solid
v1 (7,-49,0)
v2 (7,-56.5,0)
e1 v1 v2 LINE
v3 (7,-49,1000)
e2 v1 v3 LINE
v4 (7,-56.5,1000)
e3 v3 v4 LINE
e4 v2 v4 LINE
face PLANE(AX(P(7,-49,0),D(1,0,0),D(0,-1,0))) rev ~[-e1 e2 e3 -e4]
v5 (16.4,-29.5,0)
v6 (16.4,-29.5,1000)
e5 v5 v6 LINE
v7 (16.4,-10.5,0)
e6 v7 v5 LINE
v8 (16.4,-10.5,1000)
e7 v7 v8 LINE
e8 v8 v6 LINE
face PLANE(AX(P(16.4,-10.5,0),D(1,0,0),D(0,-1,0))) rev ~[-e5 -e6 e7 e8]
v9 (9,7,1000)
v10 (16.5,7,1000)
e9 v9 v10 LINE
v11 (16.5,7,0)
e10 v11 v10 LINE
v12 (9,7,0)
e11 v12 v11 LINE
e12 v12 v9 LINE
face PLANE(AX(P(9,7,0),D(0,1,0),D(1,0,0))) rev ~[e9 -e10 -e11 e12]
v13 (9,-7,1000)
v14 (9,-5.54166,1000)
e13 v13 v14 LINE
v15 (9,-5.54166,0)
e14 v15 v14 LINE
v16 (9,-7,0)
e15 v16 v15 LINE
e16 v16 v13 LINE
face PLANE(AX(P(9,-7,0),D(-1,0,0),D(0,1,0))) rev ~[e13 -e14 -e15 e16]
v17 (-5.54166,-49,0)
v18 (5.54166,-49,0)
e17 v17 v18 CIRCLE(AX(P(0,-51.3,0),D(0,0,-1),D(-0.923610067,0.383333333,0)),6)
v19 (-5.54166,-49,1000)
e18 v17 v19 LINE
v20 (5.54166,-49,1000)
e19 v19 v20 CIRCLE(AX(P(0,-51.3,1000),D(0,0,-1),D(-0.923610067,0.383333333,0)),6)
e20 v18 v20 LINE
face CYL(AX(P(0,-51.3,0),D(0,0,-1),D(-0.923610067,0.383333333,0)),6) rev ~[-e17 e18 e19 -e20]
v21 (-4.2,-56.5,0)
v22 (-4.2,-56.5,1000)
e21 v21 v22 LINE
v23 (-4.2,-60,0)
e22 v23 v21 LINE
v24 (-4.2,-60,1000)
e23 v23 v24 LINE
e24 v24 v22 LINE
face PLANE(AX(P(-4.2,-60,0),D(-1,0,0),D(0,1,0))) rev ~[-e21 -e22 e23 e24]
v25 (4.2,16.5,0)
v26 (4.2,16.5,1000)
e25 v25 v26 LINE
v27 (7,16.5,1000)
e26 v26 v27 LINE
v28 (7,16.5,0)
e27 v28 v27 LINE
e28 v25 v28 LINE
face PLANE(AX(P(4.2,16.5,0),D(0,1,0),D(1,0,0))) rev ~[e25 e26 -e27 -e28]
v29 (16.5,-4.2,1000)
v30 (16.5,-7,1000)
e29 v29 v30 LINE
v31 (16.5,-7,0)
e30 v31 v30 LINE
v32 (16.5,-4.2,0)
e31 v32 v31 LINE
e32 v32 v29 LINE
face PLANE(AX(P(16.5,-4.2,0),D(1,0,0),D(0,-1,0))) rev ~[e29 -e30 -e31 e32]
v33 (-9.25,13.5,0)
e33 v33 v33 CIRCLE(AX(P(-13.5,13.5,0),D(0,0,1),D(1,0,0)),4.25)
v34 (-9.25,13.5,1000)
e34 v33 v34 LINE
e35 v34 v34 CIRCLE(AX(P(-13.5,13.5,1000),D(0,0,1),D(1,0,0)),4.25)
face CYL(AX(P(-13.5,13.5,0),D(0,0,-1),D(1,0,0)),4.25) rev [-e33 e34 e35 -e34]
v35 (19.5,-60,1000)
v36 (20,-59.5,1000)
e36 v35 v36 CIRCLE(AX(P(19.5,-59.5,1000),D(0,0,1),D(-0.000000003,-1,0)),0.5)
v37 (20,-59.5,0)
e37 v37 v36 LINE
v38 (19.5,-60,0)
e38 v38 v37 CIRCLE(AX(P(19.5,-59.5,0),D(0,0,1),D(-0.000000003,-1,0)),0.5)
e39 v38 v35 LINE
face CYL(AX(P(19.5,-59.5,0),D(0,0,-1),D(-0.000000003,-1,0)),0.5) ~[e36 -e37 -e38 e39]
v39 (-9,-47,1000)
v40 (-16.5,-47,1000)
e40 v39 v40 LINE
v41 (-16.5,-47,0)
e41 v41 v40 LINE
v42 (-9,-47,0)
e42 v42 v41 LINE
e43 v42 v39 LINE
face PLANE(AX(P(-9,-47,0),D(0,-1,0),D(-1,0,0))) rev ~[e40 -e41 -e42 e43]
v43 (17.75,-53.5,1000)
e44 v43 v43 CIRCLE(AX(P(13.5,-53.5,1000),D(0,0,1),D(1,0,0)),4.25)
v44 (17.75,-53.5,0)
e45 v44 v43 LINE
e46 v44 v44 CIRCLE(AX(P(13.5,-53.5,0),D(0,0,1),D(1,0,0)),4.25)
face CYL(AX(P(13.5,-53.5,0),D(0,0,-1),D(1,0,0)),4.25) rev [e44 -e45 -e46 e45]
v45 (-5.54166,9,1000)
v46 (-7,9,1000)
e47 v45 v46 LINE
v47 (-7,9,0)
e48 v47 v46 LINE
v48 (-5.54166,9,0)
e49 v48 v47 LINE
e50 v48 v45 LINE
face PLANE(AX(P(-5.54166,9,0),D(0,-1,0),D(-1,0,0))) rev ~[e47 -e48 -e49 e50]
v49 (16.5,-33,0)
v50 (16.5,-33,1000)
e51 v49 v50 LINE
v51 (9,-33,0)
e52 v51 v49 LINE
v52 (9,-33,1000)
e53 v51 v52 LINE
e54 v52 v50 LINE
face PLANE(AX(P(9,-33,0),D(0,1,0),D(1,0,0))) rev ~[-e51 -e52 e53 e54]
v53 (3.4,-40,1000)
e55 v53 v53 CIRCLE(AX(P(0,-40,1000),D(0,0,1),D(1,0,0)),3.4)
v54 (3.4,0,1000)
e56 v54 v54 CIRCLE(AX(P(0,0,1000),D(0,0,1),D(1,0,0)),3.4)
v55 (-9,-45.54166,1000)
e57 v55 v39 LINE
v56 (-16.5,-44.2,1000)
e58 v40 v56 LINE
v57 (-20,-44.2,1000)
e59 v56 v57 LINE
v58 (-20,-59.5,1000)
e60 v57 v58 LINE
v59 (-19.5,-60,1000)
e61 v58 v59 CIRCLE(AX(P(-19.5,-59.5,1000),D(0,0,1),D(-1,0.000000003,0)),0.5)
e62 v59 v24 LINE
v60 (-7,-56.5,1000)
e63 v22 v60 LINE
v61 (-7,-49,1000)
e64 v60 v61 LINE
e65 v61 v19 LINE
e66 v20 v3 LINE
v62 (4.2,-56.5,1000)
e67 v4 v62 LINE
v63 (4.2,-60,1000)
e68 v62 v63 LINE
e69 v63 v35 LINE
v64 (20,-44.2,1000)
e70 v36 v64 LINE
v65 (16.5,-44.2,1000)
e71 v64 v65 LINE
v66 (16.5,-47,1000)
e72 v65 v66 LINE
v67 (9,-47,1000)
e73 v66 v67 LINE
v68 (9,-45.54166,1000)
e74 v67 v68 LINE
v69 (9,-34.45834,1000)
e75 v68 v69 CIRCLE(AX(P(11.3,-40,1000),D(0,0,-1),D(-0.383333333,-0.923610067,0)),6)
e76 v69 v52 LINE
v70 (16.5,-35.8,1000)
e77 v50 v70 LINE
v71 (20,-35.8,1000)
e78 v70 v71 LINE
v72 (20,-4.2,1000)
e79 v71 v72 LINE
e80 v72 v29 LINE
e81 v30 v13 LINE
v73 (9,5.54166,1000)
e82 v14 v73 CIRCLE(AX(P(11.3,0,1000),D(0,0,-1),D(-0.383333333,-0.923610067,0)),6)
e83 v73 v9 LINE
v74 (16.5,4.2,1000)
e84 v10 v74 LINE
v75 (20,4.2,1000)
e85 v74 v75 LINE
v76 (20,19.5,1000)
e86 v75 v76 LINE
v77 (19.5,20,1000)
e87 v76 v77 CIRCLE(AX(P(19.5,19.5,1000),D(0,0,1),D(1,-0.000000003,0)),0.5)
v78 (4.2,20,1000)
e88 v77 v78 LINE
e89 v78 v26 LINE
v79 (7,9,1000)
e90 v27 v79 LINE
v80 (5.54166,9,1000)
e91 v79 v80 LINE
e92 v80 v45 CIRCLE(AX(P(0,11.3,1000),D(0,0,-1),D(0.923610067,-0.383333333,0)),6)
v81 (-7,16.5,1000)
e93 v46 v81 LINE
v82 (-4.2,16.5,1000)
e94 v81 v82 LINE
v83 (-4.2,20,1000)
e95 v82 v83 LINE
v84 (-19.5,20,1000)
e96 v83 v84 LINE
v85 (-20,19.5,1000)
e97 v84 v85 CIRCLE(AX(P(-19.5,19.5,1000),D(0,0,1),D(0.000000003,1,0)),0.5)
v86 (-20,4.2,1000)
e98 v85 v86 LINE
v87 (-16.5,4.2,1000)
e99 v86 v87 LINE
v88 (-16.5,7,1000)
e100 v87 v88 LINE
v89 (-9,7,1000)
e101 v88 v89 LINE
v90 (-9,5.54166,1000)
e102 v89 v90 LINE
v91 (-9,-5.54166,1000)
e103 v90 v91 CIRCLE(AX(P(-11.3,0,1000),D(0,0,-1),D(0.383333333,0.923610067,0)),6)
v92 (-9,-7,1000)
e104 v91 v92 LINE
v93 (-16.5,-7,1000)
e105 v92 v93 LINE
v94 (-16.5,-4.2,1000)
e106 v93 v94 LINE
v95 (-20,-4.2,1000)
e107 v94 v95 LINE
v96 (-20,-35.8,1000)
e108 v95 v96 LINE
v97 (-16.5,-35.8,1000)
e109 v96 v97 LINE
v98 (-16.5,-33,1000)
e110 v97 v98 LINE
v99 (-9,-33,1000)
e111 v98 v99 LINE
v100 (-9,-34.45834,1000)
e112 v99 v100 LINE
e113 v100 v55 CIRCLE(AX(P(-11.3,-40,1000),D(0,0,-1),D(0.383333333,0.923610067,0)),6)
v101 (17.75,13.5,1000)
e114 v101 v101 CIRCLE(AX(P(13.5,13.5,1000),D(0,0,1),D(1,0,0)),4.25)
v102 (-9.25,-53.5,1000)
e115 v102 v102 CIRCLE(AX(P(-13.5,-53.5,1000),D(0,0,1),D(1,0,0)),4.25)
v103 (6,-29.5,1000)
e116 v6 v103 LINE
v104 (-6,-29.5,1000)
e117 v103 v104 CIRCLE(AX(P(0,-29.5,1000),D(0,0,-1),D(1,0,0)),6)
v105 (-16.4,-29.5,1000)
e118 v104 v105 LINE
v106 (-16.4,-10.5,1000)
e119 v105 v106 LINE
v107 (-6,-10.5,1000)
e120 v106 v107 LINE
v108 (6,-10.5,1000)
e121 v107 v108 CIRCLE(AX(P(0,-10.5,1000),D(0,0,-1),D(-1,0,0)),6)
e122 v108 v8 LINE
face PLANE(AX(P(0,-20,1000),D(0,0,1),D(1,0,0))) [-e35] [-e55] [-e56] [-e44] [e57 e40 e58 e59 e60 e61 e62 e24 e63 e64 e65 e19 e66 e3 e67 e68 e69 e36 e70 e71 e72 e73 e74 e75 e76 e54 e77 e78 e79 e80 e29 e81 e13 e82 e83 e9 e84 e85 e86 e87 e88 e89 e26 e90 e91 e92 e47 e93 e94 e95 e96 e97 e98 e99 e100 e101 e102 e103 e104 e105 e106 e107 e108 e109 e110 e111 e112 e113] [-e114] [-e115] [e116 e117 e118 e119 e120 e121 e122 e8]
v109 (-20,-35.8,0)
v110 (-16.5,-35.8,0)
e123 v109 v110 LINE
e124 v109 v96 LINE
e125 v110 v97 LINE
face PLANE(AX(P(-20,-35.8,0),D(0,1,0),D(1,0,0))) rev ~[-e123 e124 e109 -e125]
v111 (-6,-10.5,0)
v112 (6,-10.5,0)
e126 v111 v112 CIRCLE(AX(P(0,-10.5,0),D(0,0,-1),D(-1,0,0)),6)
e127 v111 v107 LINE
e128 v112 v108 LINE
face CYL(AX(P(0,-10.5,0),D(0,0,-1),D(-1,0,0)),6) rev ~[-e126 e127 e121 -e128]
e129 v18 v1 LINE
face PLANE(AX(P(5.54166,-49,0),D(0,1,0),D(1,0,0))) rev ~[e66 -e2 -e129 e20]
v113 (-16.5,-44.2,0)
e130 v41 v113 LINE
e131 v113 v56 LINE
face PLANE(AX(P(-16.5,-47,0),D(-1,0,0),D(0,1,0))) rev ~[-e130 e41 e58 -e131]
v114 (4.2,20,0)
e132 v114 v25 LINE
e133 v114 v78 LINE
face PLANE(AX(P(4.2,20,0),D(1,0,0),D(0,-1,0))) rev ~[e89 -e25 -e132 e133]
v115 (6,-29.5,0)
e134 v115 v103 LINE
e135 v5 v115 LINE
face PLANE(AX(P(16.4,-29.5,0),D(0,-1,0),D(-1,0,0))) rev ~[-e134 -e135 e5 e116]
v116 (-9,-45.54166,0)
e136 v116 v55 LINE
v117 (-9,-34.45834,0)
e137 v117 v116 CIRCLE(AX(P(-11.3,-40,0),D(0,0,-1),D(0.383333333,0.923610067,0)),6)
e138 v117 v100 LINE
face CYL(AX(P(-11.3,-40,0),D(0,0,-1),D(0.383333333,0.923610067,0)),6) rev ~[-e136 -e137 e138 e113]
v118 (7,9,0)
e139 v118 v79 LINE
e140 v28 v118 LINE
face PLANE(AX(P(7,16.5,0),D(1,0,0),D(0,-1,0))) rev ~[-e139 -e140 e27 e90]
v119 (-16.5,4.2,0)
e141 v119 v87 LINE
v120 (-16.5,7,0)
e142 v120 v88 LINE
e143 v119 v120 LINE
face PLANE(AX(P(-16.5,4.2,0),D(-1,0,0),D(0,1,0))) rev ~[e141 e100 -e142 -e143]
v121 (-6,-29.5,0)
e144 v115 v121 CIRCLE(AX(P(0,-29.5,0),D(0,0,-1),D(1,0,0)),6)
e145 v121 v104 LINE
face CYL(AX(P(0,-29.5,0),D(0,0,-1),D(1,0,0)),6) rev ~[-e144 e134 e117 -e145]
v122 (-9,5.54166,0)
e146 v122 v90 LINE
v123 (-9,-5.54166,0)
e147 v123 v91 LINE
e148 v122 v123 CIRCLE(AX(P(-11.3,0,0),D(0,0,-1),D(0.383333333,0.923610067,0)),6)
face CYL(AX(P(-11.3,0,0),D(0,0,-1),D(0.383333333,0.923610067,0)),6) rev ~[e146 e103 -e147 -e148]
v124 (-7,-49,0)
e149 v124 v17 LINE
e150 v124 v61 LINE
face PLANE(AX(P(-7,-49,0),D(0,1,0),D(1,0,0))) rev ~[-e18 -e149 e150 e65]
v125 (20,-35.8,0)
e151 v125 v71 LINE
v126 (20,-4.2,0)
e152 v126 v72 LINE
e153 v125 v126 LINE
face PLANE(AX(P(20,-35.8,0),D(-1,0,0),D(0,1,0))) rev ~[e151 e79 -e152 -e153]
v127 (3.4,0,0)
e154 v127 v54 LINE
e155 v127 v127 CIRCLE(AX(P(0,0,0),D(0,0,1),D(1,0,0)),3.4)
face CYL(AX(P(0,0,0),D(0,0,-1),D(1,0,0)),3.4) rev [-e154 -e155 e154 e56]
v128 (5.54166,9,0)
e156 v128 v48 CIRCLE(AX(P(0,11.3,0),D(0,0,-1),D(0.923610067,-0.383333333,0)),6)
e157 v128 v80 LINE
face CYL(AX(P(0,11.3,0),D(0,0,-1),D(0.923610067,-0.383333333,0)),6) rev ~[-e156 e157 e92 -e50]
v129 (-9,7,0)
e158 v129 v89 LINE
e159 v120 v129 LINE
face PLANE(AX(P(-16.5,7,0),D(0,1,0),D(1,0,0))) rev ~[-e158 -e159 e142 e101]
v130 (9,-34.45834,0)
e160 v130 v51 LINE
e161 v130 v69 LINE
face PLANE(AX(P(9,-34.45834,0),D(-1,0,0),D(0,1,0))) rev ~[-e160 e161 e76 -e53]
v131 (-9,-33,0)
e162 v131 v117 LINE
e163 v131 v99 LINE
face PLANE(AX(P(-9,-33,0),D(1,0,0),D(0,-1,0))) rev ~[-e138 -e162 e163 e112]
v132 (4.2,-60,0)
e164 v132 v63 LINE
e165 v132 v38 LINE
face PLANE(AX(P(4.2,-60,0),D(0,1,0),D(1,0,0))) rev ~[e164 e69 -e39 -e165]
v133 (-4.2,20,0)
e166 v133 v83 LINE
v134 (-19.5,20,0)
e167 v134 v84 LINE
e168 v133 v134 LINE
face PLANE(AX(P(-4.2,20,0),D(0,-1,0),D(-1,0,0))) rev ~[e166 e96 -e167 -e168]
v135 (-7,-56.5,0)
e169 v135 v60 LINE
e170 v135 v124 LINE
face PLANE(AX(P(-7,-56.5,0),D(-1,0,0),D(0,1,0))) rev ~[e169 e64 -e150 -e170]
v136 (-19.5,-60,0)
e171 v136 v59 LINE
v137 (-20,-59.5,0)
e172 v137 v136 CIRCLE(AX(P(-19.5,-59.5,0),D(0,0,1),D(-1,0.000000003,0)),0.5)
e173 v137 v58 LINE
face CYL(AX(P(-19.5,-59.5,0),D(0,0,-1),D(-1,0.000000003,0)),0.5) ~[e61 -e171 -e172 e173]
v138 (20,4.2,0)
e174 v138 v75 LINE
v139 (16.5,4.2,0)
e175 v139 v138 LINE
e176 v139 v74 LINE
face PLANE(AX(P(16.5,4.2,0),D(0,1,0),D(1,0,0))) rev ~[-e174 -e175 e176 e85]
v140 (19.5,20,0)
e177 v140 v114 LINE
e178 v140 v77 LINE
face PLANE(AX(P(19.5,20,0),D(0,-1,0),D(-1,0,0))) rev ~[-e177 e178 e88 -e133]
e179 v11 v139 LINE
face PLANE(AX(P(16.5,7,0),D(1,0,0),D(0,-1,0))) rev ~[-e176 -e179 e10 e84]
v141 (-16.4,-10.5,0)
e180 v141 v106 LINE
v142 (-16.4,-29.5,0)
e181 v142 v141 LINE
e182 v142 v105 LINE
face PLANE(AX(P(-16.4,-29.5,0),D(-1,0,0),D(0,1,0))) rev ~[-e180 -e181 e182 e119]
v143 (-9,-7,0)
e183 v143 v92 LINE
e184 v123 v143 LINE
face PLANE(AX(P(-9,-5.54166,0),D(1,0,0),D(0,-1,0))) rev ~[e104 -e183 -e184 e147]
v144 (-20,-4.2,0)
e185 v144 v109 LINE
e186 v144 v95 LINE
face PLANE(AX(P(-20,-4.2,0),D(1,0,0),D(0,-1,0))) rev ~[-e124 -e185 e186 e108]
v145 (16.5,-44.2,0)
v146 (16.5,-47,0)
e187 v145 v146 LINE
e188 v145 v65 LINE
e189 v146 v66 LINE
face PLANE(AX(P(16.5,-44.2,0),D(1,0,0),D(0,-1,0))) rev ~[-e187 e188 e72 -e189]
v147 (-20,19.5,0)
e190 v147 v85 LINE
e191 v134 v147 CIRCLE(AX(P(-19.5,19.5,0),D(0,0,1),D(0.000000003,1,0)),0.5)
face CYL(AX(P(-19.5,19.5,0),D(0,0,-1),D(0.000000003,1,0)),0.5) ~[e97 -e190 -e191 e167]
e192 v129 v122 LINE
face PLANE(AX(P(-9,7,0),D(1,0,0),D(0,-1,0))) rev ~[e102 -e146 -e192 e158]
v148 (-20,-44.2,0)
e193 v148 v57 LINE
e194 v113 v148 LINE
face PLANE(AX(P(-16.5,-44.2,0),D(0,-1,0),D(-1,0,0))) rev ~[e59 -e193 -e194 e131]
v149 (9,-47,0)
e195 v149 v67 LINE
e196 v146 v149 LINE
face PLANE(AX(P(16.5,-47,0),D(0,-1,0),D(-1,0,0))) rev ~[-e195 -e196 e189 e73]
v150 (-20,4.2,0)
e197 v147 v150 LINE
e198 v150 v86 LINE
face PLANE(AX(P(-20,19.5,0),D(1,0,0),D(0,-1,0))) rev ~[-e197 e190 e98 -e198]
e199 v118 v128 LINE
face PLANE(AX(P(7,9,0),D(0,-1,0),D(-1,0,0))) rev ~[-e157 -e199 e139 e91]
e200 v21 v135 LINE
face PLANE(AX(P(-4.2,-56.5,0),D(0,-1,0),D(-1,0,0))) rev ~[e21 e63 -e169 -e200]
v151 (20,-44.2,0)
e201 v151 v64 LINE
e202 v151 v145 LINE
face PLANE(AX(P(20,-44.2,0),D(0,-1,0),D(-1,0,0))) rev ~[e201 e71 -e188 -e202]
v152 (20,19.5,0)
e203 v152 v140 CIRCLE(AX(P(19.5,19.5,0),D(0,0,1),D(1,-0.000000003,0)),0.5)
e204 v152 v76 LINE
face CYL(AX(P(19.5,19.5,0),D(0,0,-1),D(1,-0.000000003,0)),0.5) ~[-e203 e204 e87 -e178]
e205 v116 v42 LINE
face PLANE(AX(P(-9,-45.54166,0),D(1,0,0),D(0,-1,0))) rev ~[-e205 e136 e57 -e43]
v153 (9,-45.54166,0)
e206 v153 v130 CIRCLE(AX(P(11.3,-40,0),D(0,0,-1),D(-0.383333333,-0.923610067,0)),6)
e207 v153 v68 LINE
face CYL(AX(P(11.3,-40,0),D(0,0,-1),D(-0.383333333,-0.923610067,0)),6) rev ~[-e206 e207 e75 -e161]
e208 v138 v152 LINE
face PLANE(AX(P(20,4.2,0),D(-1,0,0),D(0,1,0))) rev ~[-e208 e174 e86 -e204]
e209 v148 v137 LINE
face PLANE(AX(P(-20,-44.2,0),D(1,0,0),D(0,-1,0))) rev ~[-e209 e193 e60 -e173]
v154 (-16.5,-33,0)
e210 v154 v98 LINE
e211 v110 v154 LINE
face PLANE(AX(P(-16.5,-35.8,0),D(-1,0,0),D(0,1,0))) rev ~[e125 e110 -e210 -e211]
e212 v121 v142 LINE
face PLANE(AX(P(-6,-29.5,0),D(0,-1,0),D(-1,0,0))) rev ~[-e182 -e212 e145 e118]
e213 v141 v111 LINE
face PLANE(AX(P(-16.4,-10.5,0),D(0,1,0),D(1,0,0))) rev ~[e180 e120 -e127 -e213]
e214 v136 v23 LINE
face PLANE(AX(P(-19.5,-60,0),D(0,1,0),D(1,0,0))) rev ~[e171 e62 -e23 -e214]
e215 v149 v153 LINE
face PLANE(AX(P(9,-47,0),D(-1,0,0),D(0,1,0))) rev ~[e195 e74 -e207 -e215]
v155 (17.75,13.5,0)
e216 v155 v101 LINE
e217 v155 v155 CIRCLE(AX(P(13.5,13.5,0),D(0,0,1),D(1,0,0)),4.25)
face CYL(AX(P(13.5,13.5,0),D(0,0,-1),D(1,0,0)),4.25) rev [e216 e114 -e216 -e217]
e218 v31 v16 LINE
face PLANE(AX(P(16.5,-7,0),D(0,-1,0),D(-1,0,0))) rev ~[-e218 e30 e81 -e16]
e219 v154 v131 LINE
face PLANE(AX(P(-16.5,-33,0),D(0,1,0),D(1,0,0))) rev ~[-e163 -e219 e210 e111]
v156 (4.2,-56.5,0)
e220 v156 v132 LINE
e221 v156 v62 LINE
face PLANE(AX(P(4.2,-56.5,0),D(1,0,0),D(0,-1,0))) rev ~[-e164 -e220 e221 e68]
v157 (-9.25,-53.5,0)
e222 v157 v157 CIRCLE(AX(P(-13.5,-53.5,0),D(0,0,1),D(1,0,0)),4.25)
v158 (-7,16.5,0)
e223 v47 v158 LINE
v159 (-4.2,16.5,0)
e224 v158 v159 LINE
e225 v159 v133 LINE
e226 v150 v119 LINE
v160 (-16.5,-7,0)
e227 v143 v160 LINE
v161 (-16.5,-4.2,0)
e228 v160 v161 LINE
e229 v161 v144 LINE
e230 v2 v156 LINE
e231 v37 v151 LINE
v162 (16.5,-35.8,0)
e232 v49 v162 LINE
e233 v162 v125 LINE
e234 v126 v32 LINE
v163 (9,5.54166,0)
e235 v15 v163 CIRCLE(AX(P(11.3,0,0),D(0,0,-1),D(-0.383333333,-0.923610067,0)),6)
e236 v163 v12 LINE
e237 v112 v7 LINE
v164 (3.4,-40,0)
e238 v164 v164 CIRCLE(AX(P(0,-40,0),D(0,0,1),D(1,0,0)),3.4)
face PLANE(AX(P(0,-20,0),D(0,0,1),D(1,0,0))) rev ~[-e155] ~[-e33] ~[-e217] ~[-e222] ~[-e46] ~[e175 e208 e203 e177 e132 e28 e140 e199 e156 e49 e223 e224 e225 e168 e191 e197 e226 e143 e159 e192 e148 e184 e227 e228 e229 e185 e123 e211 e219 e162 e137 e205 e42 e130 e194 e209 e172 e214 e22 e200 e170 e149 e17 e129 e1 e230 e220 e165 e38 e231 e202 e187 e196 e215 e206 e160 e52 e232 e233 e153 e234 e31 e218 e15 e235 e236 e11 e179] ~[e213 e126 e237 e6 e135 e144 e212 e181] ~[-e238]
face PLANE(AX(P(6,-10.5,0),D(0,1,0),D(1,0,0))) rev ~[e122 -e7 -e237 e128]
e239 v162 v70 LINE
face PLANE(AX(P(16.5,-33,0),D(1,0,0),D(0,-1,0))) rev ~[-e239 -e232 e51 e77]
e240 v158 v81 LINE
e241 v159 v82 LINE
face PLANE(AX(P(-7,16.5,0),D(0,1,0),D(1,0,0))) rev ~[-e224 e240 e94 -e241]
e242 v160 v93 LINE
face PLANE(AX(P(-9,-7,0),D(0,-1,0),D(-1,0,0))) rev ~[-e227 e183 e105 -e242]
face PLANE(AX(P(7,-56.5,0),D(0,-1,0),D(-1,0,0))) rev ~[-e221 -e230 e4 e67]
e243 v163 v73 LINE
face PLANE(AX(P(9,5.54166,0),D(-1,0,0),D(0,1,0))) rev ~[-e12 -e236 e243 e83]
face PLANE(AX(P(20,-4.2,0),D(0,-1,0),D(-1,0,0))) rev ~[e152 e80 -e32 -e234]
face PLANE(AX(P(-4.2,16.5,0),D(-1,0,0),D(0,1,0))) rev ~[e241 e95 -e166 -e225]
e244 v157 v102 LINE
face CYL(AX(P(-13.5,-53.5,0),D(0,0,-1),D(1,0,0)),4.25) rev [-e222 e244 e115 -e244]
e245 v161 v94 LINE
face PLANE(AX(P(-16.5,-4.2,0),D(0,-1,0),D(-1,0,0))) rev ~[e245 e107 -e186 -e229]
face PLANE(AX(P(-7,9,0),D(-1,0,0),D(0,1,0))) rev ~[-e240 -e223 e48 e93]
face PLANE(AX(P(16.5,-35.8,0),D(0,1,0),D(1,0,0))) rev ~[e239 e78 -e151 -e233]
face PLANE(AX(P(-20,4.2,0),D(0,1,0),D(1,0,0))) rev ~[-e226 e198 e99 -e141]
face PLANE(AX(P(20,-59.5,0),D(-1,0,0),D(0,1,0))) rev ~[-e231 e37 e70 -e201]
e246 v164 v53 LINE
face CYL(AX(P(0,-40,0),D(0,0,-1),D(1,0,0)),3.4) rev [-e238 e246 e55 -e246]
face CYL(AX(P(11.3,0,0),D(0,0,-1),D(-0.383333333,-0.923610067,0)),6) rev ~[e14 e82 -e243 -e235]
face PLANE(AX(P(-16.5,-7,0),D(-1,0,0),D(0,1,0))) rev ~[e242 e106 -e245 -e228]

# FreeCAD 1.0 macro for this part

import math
import FreeCAD as App
import Part
import Sketcher
from FreeCAD import Vector
Q = App.Units.Quantity

doc = App.newDocument("Part")
body = doc.addObject("PartDesign::Body", "Body")

# Sketch on XY plane
sketch1 = body.newObject("Sketcher::SketchObject", "Sketch")
sketch1.AttachmentSupport = (doc.getObject("XY_Plane"), [""])
sketch1.MapMode = "FlatFace"
sketch1.addGeometry(Part.LineSegment(Vector(-20, 19.5, 0), Vector(-20, 4.2, 0)), False)
sketch1.addGeometry(Part.LineSegment(Vector(-20, 4.2, 0), Vector(-16.5, 4.2, 0)), False)
sketch1.addGeometry(Part.LineSegment(Vector(-16.5, 4.2, 0), Vector(-16.5, 7, 0)), False)
sketch1.addGeometry(Part.LineSegment(Vector(-16.5, 7, 0), Vector(-9, 7, 0)), False)
sketch1.addGeometry(Part.LineSegment(Vector(-9, 7, 0), Vector(-9, 5.54, 0)), False)
sketch1.addGeometry(Part.ArcOfCircle(Part.Circle(Vector(-11.3, 0, 0), Vector(0, 0, 1), 6), math.radians(-67), math.radians(67)), False)
sketch1.addGeometry(Part.LineSegment(Vector(-9, -5.54, 0), Vector(-9, -7, 0)), False)
sketch1.addGeometry(Part.LineSegment(Vector(-9, -7, 0), Vector(-16.5, -7, 0)), False)
sketch1.addGeometry(Part.LineSegment(Vector(-16.5, -7, 0), Vector(-16.5, -4.2, 0)), False)
sketch1.addGeometry(Part.LineSegment(Vector(-16.5, -4.2, 0), Vector(-20, -4.2, 0)), False)
sketch1.addGeometry(Part.LineSegment(Vector(-20, -4.2, 0), Vector(-20, -35.8, 0)), False)
sketch1.addGeometry(Part.LineSegment(Vector(-20, -35.8, 0), Vector(-16.5, -35.8, 0)), False)
sketch1.addGeometry(Part.LineSegment(Vector(-16.5, -35.8, 0), Vector(-16.5, -33, 0)), False)
sketch1.addGeometry(Part.LineSegment(Vector(-16.5, -33, 0), Vector(-9, -33, 0)), False)
sketch1.addGeometry(Part.LineSegment(Vector(-9, -33, 0), Vector(-9, -34.46, 0)), False)
sketch1.addGeometry(Part.ArcOfCircle(Part.Circle(Vector(-11.3, -40, 0), Vector(0, 0, 1), 6), math.radians(-67), math.radians(67)), False)
sketch1.addGeometry(Part.LineSegment(Vector(-9, -45.54, 0), Vector(-9, -47, 0)), False)
sketch1.addGeometry(Part.LineSegment(Vector(-9, -47, 0), Vector(-16.5, -47, 0)), False)
sketch1.addGeometry(Part.LineSegment(Vector(-16.5, -47, 0), Vector(-16.5, -44.2, 0)), False)
sketch1.addGeometry(Part.LineSegment(Vector(-16.5, -44.2, 0), Vector(-20, -44.2, 0)), False)
sketch1.addGeometry(Part.LineSegment(Vector(-20, -44.2, 0), Vector(-20, -59.5, 0)), False)
sketch1.addGeometry(Part.ArcOfCircle(Part.Circle(Vector(-19.5, -59.5, 0), Vector(0, 0, 1), 0.5), math.radians(180), math.radians(270)), False)
sketch1.addGeometry(Part.LineSegment(Vector(-19.5, -60, 0), Vector(-4.2, -60, 0)), False)
sketch1.addGeometry(Part.LineSegment(Vector(-4.2, -60, 0), Vector(-4.2, -56.5, 0)), False)
sketch1.addGeometry(Part.LineSegment(Vector(-4.2, -56.5, 0), Vector(-7, -56.5, 0)), False)
sketch1.addGeometry(Part.LineSegment(Vector(-7, -56.5, 0), Vector(-7, -49, 0)), False)
sketch1.addGeometry(Part.LineSegment(Vector(-7, -49, 0), Vector(-5.54, -49, 0)), False)
sketch1.addGeometry(Part.ArcOfCircle(Part.Circle(Vector(0, -51.3, 0), Vector(0, 0, 1), 6), math.radians(23), math.radians(157)), False)
sketch1.addGeometry(Part.LineSegment(Vector(5.54, -49, 0), Vector(7, -49, 0)), False)
sketch1.addGeometry(Part.LineSegment(Vector(7, -49, 0), Vector(7, -56.5, 0)), False)
sketch1.addGeometry(Part.LineSegment(Vector(7, -56.5, 0), Vector(4.2, -56.5, 0)), False)
sketch1.addGeometry(Part.LineSegment(Vector(4.2, -56.5, 0), Vector(4.2, -60, 0)), False)
sketch1.addGeometry(Part.LineSegment(Vector(4.2, -60, 0), Vector(19.5, -60, 0)), False)
sketch1.addGeometry(Part.ArcOfCircle(Part.Circle(Vector(19.5, -59.5, 0), Vector(0, 0, 1), 0.5), math.radians(-90), math.radians(0)), False)
sketch1.addGeometry(Part.LineSegment(Vector(20, -59.5, 0), Vector(20, -44.2, 0)), False)
sketch1.addGeometry(Part.LineSegment(Vector(20, -44.2, 0), Vector(16.5, -44.2, 0)), False)
sketch1.addGeometry(Part.LineSegment(Vector(16.5, -44.2, 0), Vector(16.5, -47, 0)), False)
sketch1.addGeometry(Part.LineSegment(Vector(16.5, -47, 0), Vector(9, -47, 0)), False)
sketch1.addGeometry(Part.LineSegment(Vector(9, -47, 0), Vector(9, -45.54, 0)), False)
sketch1.addGeometry(Part.ArcOfCircle(Part.Circle(Vector(11.3, -40, 0), Vector(0, 0, 1), 6), math.radians(113), math.radians(247)), False)
sketch1.addGeometry(Part.LineSegment(Vector(9, -34.46, 0), Vector(9, -33, 0)), False)
sketch1.addGeometry(Part.LineSegment(Vector(9, -33, 0), Vector(16.5, -33, 0)), False)
sketch1.addGeometry(Part.LineSegment(Vector(16.5, -33, 0), Vector(16.5, -35.8, 0)), False)
sketch1.addGeometry(Part.LineSegment(Vector(16.5, -35.8, 0), Vector(20, -35.8, 0)), False)
sketch1.addGeometry(Part.LineSegment(Vector(20, -35.8, 0), Vector(20, -4.2, 0)), False)
sketch1.addGeometry(Part.LineSegment(Vector(20, -4.2, 0), Vector(16.5, -4.2, 0)), False)
sketch1.addGeometry(Part.LineSegment(Vector(16.5, -4.2, 0), Vector(16.5, -7, 0)), False)
sketch1.addGeometry(Part.LineSegment(Vector(16.5, -7, 0), Vector(9, -7, 0)), False)
sketch1.addGeometry(Part.LineSegment(Vector(9, -7, 0), Vector(9, -5.54, 0)), False)
sketch1.addGeometry(Part.ArcOfCircle(Part.Circle(Vector(11.3, 0, 0), Vector(0, 0, 1), 6), math.radians(113), math.radians(247)), False)
sketch1.addGeometry(Part.LineSegment(Vector(9, 5.54, 0), Vector(9, 7, 0)), False)
sketch1.addGeometry(Part.LineSegment(Vector(9, 7, 0), Vector(16.5, 7, 0)), False)
sketch1.addGeometry(Part.LineSegment(Vector(16.5, 7, 0), Vector(16.5, 4.2, 0)), False)
sketch1.addGeometry(Part.LineSegment(Vector(16.5, 4.2, 0), Vector(20, 4.2, 0)), False)
sketch1.addGeometry(Part.LineSegment(Vector(20, 4.2, 0), Vector(20, 19.5, 0)), False)
sketch1.addGeometry(Part.ArcOfCircle(Part.Circle(Vector(19.5, 19.5, 0), Vector(0, 0, 1), 0.5), math.radians(0), math.radians(90)), False)
sketch1.addGeometry(Part.LineSegment(Vector(19.5, 20, 0), Vector(4.2, 20, 0)), False)
sketch1.addGeometry(Part.LineSegment(Vector(4.2, 20, 0), Vector(4.2, 16.5, 0)), False)
sketch1.addGeometry(Part.LineSegment(Vector(4.2, 16.5, 0), Vector(7, 16.5, 0)), False)
sketch1.addGeometry(Part.LineSegment(Vector(7, 16.5, 0), Vector(7, 9, 0)), False)
sketch1.addGeometry(Part.LineSegment(Vector(7, 9, 0), Vector(5.54, 9, 0)), False)
sketch1.addGeometry(Part.ArcOfCircle(Part.Circle(Vector(0, 11.3, 0), Vector(0, 0, 1), 6), math.radians(-157), math.radians(-23)), False)
sketch1.addGeometry(Part.LineSegment(Vector(-5.54, 9, 0), Vector(-7, 9, 0)), False)
sketch1.addGeometry(Part.LineSegment(Vector(-7, 9, 0), Vector(-7, 16.5, 0)), False)
sketch1.addGeometry(Part.LineSegment(Vector(-7, 16.5, 0), Vector(-4.2, 16.5, 0)), False)
sketch1.addGeometry(Part.LineSegment(Vector(-4.2, 16.5, 0), Vector(-4.2, 20, 0)), False)
sketch1.addGeometry(Part.LineSegment(Vector(-4.2, 20, 0), Vector(-19.5, 20, 0)), False)
sketch1.addGeometry(Part.ArcOfCircle(Part.Circle(Vector(-19.5, 19.5, 0), Vector(0, 0, 1), 0.5), math.radians(90), math.radians(180)), False)
sketch1.addGeometry(Part.Circle(Vector(-13.5, -53.5, 0), Vector(0, 0, 1), 4.25), False)
sketch1.addGeometry(Part.Circle(Vector(0, -40, 0), Vector(0, 0, 1), 3.4), False)
sketch1.addGeometry(Part.Circle(Vector(13.5, -53.5, 0), Vector(0, 0, 1), 4.25), False)
sketch1.addGeometry(Part.Circle(Vector(-13.5, 13.5, 0), Vector(0, 0, 1), 4.25), False)
sketch1.addGeometry(Part.LineSegment(Vector(6, -10.5, 0), Vector(16.4, -10.5, 0)), False)
sketch1.addGeometry(Part.LineSegment(Vector(16.4, -10.5, 0), Vector(16.4, -29.5, 0)), False)
sketch1.addGeometry(Part.LineSegment(Vector(16.4, -29.5, 0), Vector(6, -29.5, 0)), False)
sketch1.addGeometry(Part.ArcOfCircle(Part.Circle(Vector(0, -29.5, 0), Vector(0, 0, 1), 6), math.radians(180), math.radians(360)), False)
sketch1.addGeometry(Part.LineSegment(Vector(-6, -29.5, 0), Vector(-16.4, -29.5, 0)), False)
sketch1.addGeometry(Part.LineSegment(Vector(-16.4, -29.5, 0), Vector(-16.4, -10.5, 0)), False)
sketch1.addGeometry(Part.LineSegment(Vector(-16.4, -10.5, 0), Vector(-6, -10.5, 0)), False)
sketch1.addGeometry(Part.ArcOfCircle(Part.Circle(Vector(0, -10.5, 0), Vector(0, 0, 1), 6), math.radians(0), math.radians(180)), False)
sketch1.addGeometry(Part.Circle(Vector(0, 0, 0), Vector(0, 0, 1), 3.4), False)
sketch1.addGeometry(Part.Circle(Vector(13.5, 13.5, 0), Vector(0, 0, 1), 4.25), False)
sketch1.addConstraint(Sketcher.Constraint("Coincident", 0, 2, 1, 1))
sketch1.addConstraint(Sketcher.Constraint("Coincident", 1, 2, 2, 1))
sketch1.addConstraint(Sketcher.Constraint("Coincident", 2, 2, 3, 1))
sketch1.addConstraint(Sketcher.Constraint("Coincident", 3, 2, 4, 1))
sketch1.addConstraint(Sketcher.Constraint("Coincident", 4, 2, 5, 2))
sketch1.addConstraint(Sketcher.Constraint("Coincident", 5, 1, 6, 1))
sketch1.addConstraint(Sketcher.Constraint("Coincident", 6, 2, 7, 1))
sketch1.addConstraint(Sketcher.Constraint("Coincident", 7, 2, 8, 1))
sketch1.addConstraint(Sketcher.Constraint("Coincident", 8, 2, 9, 1))
sketch1.addConstraint(Sketcher.Constraint("Coincident", 9, 2, 10, 1))
sketch1.addConstraint(Sketcher.Constraint("Coincident", 10, 2, 11, 1))
sketch1.addConstraint(Sketcher.Constraint("Coincident", 11, 2, 12, 1))
sketch1.addConstraint(Sketcher.Constraint("Coincident", 12, 2, 13, 1))
sketch1.addConstraint(Sketcher.Constraint("Coincident", 13, 2, 14, 1))
sketch1.addConstraint(Sketcher.Constraint("Coincident", 14, 2, 15, 2))
sketch1.addConstraint(Sketcher.Constraint("Coincident", 15, 1, 16, 1))
sketch1.addConstraint(Sketcher.Constraint("Coincident", 16, 2, 17, 1))
sketch1.addConstraint(Sketcher.Constraint("Coincident", 17, 2, 18, 1))
sketch1.addConstraint(Sketcher.Constraint("Coincident", 18, 2, 19, 1))
sketch1.addConstraint(Sketcher.Constraint("Coincident", 19, 2, 20, 1))
sketch1.addConstraint(Sketcher.Constraint("Tangent", 20, 2, 21, 1))
sketch1.addConstraint(Sketcher.Constraint("Tangent", 21, 2, 22, 1))
sketch1.addConstraint(Sketcher.Constraint("Coincident", 22, 2, 23, 1))
sketch1.addConstraint(Sketcher.Constraint("Coincident", 23, 2, 24, 1))
sketch1.addConstraint(Sketcher.Constraint("Coincident", 24, 2, 25, 1))
sketch1.addConstraint(Sketcher.Constraint("Coincident", 25, 2, 26, 1))
sketch1.addConstraint(Sketcher.Constraint("Coincident", 26, 2, 27, 2))
sketch1.addConstraint(Sketcher.Constraint("Coincident", 27, 1, 28, 1))
sketch1.addConstraint(Sketcher.Constraint("Coincident", 28, 2, 29, 1))
sketch1.addConstraint(Sketcher.Constraint("Coincident", 29, 2, 30, 1))
sketch1.addConstraint(Sketcher.Constraint("Coincident", 30, 2, 31, 1))
sketch1.addConstraint(Sketcher.Constraint("Coincident", 31, 2, 32, 1))
sketch1.addConstraint(Sketcher.Constraint("Tangent", 32, 2, 33, 1))
sketch1.addConstraint(Sketcher.Constraint("Tangent", 33, 2, 34, 1))
sketch1.addConstraint(Sketcher.Constraint("Coincident", 34, 2, 35, 1))
sketch1.addConstraint(Sketcher.Constraint("Coincident", 35, 2, 36, 1))
sketch1.addConstraint(Sketcher.Constraint("Coincident", 36, 2, 37, 1))
sketch1.addConstraint(Sketcher.Constraint("Coincident", 37, 2, 38, 1))
sketch1.addConstraint(Sketcher.Constraint("Coincident", 38, 2, 39, 2))
sketch1.addConstraint(Sketcher.Constraint("Coincident", 39, 1, 40, 1))
sketch1.addConstraint(Sketcher.Constraint("Coincident", 40, 2, 41, 1))
sketch1.addConstraint(Sketcher.Constraint("Coincident", 41, 2, 42, 1))
sketch1.addConstraint(Sketcher.Constraint("Coincident", 42, 2, 43, 1))
sketch1.addConstraint(Sketcher.Constraint("Coincident", 43, 2, 44, 1))
sketch1.addConstraint(Sketcher.Constraint("Coincident", 44, 2, 45, 1))
sketch1.addConstraint(Sketcher.Constraint("Coincident", 45, 2, 46, 1))
sketch1.addConstraint(Sketcher.Constraint("Coincident", 46, 2, 47, 1))
sketch1.addConstraint(Sketcher.Constraint("Coincident", 47, 2, 48, 1))
sketch1.addConstraint(Sketcher.Constraint("Coincident", 48, 2, 49, 2))
sketch1.addConstraint(Sketcher.Constraint("Coincident", 49, 1, 50, 1))
sketch1.addConstraint(Sketcher.Constraint("Coincident", 50, 2, 51, 1))
sketch1.addConstraint(Sketcher.Constraint("Coincident", 51, 2, 52, 1))
sketch1.addConstraint(Sketcher.Constraint("Coincident", 52, 2, 53, 1))
sketch1.addConstraint(Sketcher.Constraint("Coincident", 53, 2, 54, 1))
sketch1.addConstraint(Sketcher.Constraint("Tangent", 54, 2, 55, 1))
sketch1.addConstraint(Sketcher.Constraint("Tangent", 55, 2, 56, 1))
sketch1.addConstraint(Sketcher.Constraint("Coincident", 56, 2, 57, 1))
sketch1.addConstraint(Sketcher.Constraint("Coincident", 57, 2, 58, 1))
sketch1.addConstraint(Sketcher.Constraint("Coincident", 58, 2, 59, 1))
sketch1.addConstraint(Sketcher.Constraint("Coincident", 59, 2, 60, 1))
sketch1.addConstraint(Sketcher.Constraint("Coincident", 60, 2, 61, 2))
sketch1.addConstraint(Sketcher.Constraint("Coincident", 61, 1, 62, 1))
sketch1.addConstraint(Sketcher.Constraint("Coincident", 62, 2, 63, 1))
sketch1.addConstraint(Sketcher.Constraint("Coincident", 63, 2, 64, 1))
sketch1.addConstraint(Sketcher.Constraint("Coincident", 64, 2, 65, 1))
sketch1.addConstraint(Sketcher.Constraint("Coincident", 65, 2, 66, 1))
sketch1.addConstraint(Sketcher.Constraint("Tangent", 66, 2, 67, 1))
sketch1.addConstraint(Sketcher.Constraint("Tangent", 67, 2, 0, 1))
sketch1.addConstraint(Sketcher.Constraint("Coincident", 72, 2, 73, 1))
sketch1.addConstraint(Sketcher.Constraint("Coincident", 73, 2, 74, 1))
sketch1.addConstraint(Sketcher.Constraint("Coincident", 74, 2, 75, 2))
sketch1.addConstraint(Sketcher.Constraint("Coincident", 75, 1, 76, 1))
sketch1.addConstraint(Sketcher.Constraint("Coincident", 76, 2, 77, 1))
sketch1.addConstraint(Sketcher.Constraint("Coincident", 77, 2, 78, 1))
sketch1.addConstraint(Sketcher.Constraint("Coincident", 78, 2, 79, 2))
sketch1.addConstraint(Sketcher.Constraint("Coincident", 79, 1, 72, 1))
sketch1.addConstraint(Sketcher.Constraint("Vertical", 0))
sketch1.addConstraint(Sketcher.Constraint("Horizontal", 1))
sketch1.addConstraint(Sketcher.Constraint("Vertical", 2))
sketch1.addConstraint(Sketcher.Constraint("Horizontal", 3))
sketch1.addConstraint(Sketcher.Constraint("Vertical", 4))
sketch1.addConstraint(Sketcher.Constraint("Vertical", 6))
sketch1.addConstraint(Sketcher.Constraint("Horizontal", 7))
sketch1.addConstraint(Sketcher.Constraint("Vertical", 8))
sketch1.addConstraint(Sketcher.Constraint("Horizontal", 9))
sketch1.addConstraint(Sketcher.Constraint("Vertical", 10))
sketch1.addConstraint(Sketcher.Constraint("Horizontal", 11))
sketch1.addConstraint(Sketcher.Constraint("Vertical", 12))
sketch1.addConstraint(Sketcher.Constraint("Horizontal", 13))
sketch1.addConstraint(Sketcher.Constraint("Vertical", 14))
sketch1.addConstraint(Sketcher.Constraint("Vertical", 16))
sketch1.addConstraint(Sketcher.Constraint("Horizontal", 17))
sketch1.addConstraint(Sketcher.Constraint("Vertical", 18))
sketch1.addConstraint(Sketcher.Constraint("Horizontal", 19))
sketch1.addConstraint(Sketcher.Constraint("Vertical", 20))
sketch1.addConstraint(Sketcher.Constraint("Horizontal", 22))
sketch1.addConstraint(Sketcher.Constraint("Vertical", 23))
sketch1.addConstraint(Sketcher.Constraint("Horizontal", 24))
sketch1.addConstraint(Sketcher.Constraint("Vertical", 25))
sketch1.addConstraint(Sketcher.Constraint("Horizontal", 26))
sketch1.addConstraint(Sketcher.Constraint("Horizontal", 28))
sketch1.addConstraint(Sketcher.Constraint("Vertical", 29))
sketch1.addConstraint(Sketcher.Constraint("Horizontal", 30))
sketch1.addConstraint(Sketcher.Constraint("Vertical", 31))
sketch1.addConstraint(Sketcher.Constraint("Horizontal", 32))
sketch1.addConstraint(Sketcher.Constraint("Vertical", 34))
sketch1.addConstraint(Sketcher.Constraint("Horizontal", 35))
sketch1.addConstraint(Sketcher.Constraint("Vertical", 36))
sketch1.addConstraint(Sketcher.Constraint("Horizontal", 37))
sketch1.addConstraint(Sketcher.Constraint("Vertical", 38))
sketch1.addConstraint(Sketcher.Constraint("Vertical", 40))
sketch1.addConstraint(Sketcher.Constraint("Horizontal", 41))
sketch1.addConstraint(Sketcher.Constraint("Vertical", 42))
sketch1.addConstraint(Sketcher.Constraint("Horizontal", 43))
sketch1.addConstraint(Sketcher.Constraint("Vertical", 44))
sketch1.addConstraint(Sketcher.Constraint("Horizontal", 45))
sketch1.addConstraint(Sketcher.Constraint("Vertical", 46))
sketch1.addConstraint(Sketcher.Constraint("Horizontal", 47))
sketch1.addConstraint(Sketcher.Constraint("Vertical", 48))
sketch1.addConstraint(Sketcher.Constraint("Vertical", 50))
sketch1.addConstraint(Sketcher.Constraint("Horizontal", 51))
sketch1.addConstraint(Sketcher.Constraint("Vertical", 52))
sketch1.addConstraint(Sketcher.Constraint("Horizontal", 53))
sketch1.addConstraint(Sketcher.Constraint("Vertical", 54))
sketch1.addConstraint(Sketcher.Constraint("Horizontal", 56))
sketch1.addConstraint(Sketcher.Constraint("Vertical", 57))
sketch1.addConstraint(Sketcher.Constraint("Horizontal", 58))
sketch1.addConstraint(Sketcher.Constraint("Vertical", 59))
sketch1.addConstraint(Sketcher.Constraint("Horizontal", 60))
sketch1.addConstraint(Sketcher.Constraint("Horizontal", 62))
sketch1.addConstraint(Sketcher.Constraint("Vertical", 63))
sketch1.addConstraint(Sketcher.Constraint("Horizontal", 64))
sketch1.addConstraint(Sketcher.Constraint("Vertical", 65))
sketch1.addConstraint(Sketcher.Constraint("Horizontal", 66))
sketch1.addConstraint(Sketcher.Constraint("Horizontal", 72))
sketch1.addConstraint(Sketcher.Constraint("Vertical", 73))
sketch1.addConstraint(Sketcher.Constraint("Horizontal", 74))
sketch1.addConstraint(Sketcher.Constraint("Horizontal", 76))
sketch1.addConstraint(Sketcher.Constraint("Vertical", 77))
sketch1.addConstraint(Sketcher.Constraint("Horizontal", 78))
sketch1.addConstraint(Sketcher.Constraint("Coincident", 80, 3, -1, 1))
sketch1.addConstraint(Sketcher.Constraint("Equal", 5, 15))
sketch1.addConstraint(Sketcher.Constraint("Equal", 15, 27))
sketch1.addConstraint(Sketcher.Constraint("Equal", 21, 33))
sketch1.addConstraint(Sketcher.Constraint("Equal", 27, 39))
sketch1.addConstraint(Sketcher.Constraint("Equal", 39, 49))
sketch1.addConstraint(Sketcher.Constraint("Equal", 33, 55))
sketch1.addConstraint(Sketcher.Constraint("Equal", 49, 61))
sketch1.addConstraint(Sketcher.Constraint("Equal", 55, 67))
sketch1.addConstraint(Sketcher.Constraint("Equal", 68, 70))
sketch1.addConstraint(Sketcher.Constraint("Equal", 70, 71))
sketch1.addConstraint(Sketcher.Constraint("Equal", 61, 75))
sketch1.addConstraint(Sketcher.Constraint("Equal", 75, 79))
sketch1.addConstraint(Sketcher.Constraint("Equal", 69, 80))
sketch1.addConstraint(Sketcher.Constraint("Equal", 71, 81))
sketch1.addConstraint(Sketcher.Constraint("Symmetric", 5, 3, 49, 3, -1, 1))
sketch1.addConstraint(Sketcher.Constraint("Symmetric", 0, 2, 44, 2, -1, 1))
sketch1.addConstraint(Sketcher.Constraint("Symmetric", 2, 2, 46, 2, -1, 1))
sketch1.addConstraint(Sketcher.Constraint("Symmetric", 6, 2, 50, 2, -1, 1))
sketch1.addConstraint(Sketcher.Constraint("Symmetric", 8, 2, 52, 2, -1, 1))
sketch1.addConstraint(Sketcher.Constraint("Symmetric", 21, 3, 33, 3, -2))
sketch1.addConstraint(Sketcher.Constraint("Symmetric", 15, 3, 39, 3, -2))
sketch1.addConstraint(Sketcher.Constraint("Symmetric", 55, 3, 67, 3, -2))
sketch1.addConstraint(Sketcher.Constraint("Symmetric", 68, 3, 70, 3, -2))
sketch1.addConstraint(Sketcher.Constraint("Symmetric", 71, 3, 81, 3, -2))
sketch1.addConstraint(Sketcher.Constraint("Symmetric", 26, 2, 27, 1, -2))
sketch1.addConstraint(Sketcher.Constraint("Symmetric", 24, 2, 29, 2, -2))
sketch1.addConstraint(Sketcher.Constraint("Symmetric", 18, 2, 35, 2, -2))
sketch1.addConstraint(Sketcher.Constraint("Symmetric", 16, 2, 37, 2, -2))
sketch1.addConstraint(Sketcher.Constraint("Symmetric", 13, 2, 40, 2, -2))
sketch1.addConstraint(Sketcher.Constraint("Symmetric", 11, 2, 42, 2, -2))
sketch1.addConstraint(Sketcher.Constraint("Symmetric", 9, 2, 44, 2, -2))
sketch1.addConstraint(Sketcher.Constraint("Symmetric", 7, 2, 46, 2, -2))
sketch1.addConstraint(Sketcher.Constraint("Symmetric", 5, 1, 48, 2, -2))
sketch1.addConstraint(Sketcher.Constraint("Symmetric", 60, 2, 61, 1, -2))
sketch1.addConstraint(Sketcher.Constraint("Symmetric", 58, 2, 63, 2, -2))
sketch1.addConstraint(Sketcher.Constraint("Symmetric", 74, 2, 75, 1, -2))
sketch1.addConstraint(Sketcher.Constraint("Symmetric", 72, 2, 77, 2, -2))
sketch1.addConstraint(Sketcher.Constraint("PointOnObject", 69, 3, -2))
sketch1.addConstraint(Sketcher.Constraint("PointOnObject", 79, 3, -2))
sketch1.addConstraint(Sketcher.Constraint("Horizontal", 39, 3, 69, 3))
sketch1.addConstraint(Sketcher.Constraint("Horizontal", 4, 2, 49, 1))
sketch1.addConstraint(Sketcher.Constraint("Horizontal", 79, 3, 72, 2))
sketch1.addConstraint(Sketcher.Constraint("Horizontal", 75, 3, 73, 2))
sketch1.addConstraint(Sketcher.Constraint("Vertical", 5, 3, 15, 3))
sketch1.addConstraint(Sketcher.Constraint("Vertical", 33, 3, 55, 3))
sketch1.addConstraint(Sketcher.Constraint("Vertical", 68, 3, 71, 3))
sketch1.addConstraint(Sketcher.Constraint("Vertical", 8, 2, 11, 2))
sketch1.addConstraint(Sketcher.Constraint("Vertical", 6, 2, 13, 2))
sketch1.addConstraint(Sketcher.Constraint("Vertical", 14, 2, 15, 1))
sketch1.addConstraint(Sketcher.Constraint("Vertical", 12, 2, 17, 2))
sketch1.addConstraint(Sketcher.Constraint("Vertical", 31, 2, 56, 2))
sketch1.addConstraint(Sketcher.Constraint("Vertical", 29, 2, 58, 2))
sketch1.addConstraint(Sketcher.Constraint("Vertical", 27, 1, 60, 2))
sketch1.addConstraint(Sketcher.Constraint("Vertical", 23, 2, 64, 2))
sketch1.addConstraint(Sketcher.Constraint("Equal", 24, 30))
sketch1.addConstraint(Sketcher.Constraint("Equal", 66, 0))
sketch1.addConstraint(Sketcher.Constraint("Equal", 64, 2))
sketch1.addConstraint(Sketcher.Constraint("Equal", 62, 4))
sketch1.addConstraint(Sketcher.Constraint("Equal", 8, 12))
sketch1.addConstraint(Sketcher.Constraint("Equal", 6, 14))
sketch1.addConstraint(Sketcher.Constraint("Equal", 14, 16))
sketch1.addConstraint(Sketcher.Constraint("Equal", 12, 18))
sketch1.addConstraint(Sketcher.Constraint("Equal", 0, 20))
sketch1.addConstraint(Sketcher.Constraint("Equal", 53, 23))
sketch1.addConstraint(Sketcher.Constraint("Equal", 51, 25))
sketch1.addConstraint(Sketcher.Constraint("Equal", 31, 57))
sketch1.addConstraint(Sketcher.Constraint("Equal", 29, 59))
sketch1.addConstraint(Sketcher.Constraint("Radius", 5, Q("6 mm")))
sketch1.addConstraint(Sketcher.Constraint("Diameter", 68, Q("8.5 mm")))
sketch1.addConstraint(Sketcher.Constraint("Diameter", 69, Q("6.8 mm")))
sketch1.addConstraint(Sketcher.Constraint("Radius", 21, Q("0.5 mm")))
sketch1.addConstraint(Sketcher.Constraint("DistanceY", 73, 2, 73, 1, Q("19 mm")))
sketch1.addConstraint(Sketcher.Constraint("DistanceX", 1, 1, 1, 2, Q("3.5 mm")))
sketch1.addConstraint(Sketcher.Constraint("DistanceX", 3, 1, 3, 2, Q("7.5 mm")))
sketch1.addConstraint(Sketcher.Constraint("DistanceX", 22, 1, 22, 2, Q("15.3 mm")))
sketch1.addConstraint(Sketcher.Constraint("DistanceX", 24, 2, 24, 1, Q("2.8 mm")))
sketch1.addConstraint(Sketcher.Constraint("DistanceX", 72, 1, 72, 2, Q("10.4 mm")))
sketch1.addConstraint(Sketcher.Constraint("DistanceY", 10, 2, 10, 1, Q("31.6 mm")))
sketch1.addConstraint(Sketcher.Constraint("DistanceY", 15, 3, -1, 1, Q("40 mm")))
sketch1.addConstraint(Sketcher.Constraint("DistanceX", 0, 2, -1, 1, Q("20 mm")))
sketch1.addConstraint(Sketcher.Constraint("DistanceX", 5, 3, -1, 1, Q("11.3 mm")))
sketch1.addConstraint(Sketcher.Constraint("DistanceX", 68, 3, -1, 1, Q("13.5 mm")))
sketch1.addConstraint(Sketcher.Constraint("DistanceY", 68, 3, -1, 1, Q("53.5 mm")))
sketch1.addConstraint(Sketcher.Constraint("DistanceY", -1, 1, 71, 3, Q("13.5 mm")))
sketch1.addConstraint(Sketcher.Constraint("DistanceY", 75, 3, -1, 1, Q("29.5 mm")))
pad1 = body.newObject("PartDesign::Pad", "Pad")
pad1.Profile = sketch1
pad1.Length = 1000

doc.recompute()
